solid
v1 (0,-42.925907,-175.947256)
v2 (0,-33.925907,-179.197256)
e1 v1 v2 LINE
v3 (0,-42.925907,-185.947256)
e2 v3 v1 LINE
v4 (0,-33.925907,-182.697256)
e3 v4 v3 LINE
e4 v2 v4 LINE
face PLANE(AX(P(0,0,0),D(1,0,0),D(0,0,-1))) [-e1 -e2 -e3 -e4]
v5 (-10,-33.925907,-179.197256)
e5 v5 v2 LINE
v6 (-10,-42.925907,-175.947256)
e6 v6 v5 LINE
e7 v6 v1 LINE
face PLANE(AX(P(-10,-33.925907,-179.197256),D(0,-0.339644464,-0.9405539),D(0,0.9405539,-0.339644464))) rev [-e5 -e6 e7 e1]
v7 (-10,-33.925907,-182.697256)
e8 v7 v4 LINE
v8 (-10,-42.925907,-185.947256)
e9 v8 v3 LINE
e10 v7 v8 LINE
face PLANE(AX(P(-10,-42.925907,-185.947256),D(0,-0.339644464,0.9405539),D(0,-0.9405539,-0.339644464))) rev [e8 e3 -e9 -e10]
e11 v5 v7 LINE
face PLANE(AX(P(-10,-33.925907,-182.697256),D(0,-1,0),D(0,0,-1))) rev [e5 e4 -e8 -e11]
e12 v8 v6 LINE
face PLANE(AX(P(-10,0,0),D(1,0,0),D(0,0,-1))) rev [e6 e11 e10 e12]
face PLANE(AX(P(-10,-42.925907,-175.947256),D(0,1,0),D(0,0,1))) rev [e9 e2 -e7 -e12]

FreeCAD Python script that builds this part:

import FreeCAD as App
import Part
import Sketcher

V = App.Vector

doc = App.newDocument("Part")
body = doc.addObject("PartDesign::Body", "Body")

sketch1 = body.newObject("Sketcher::SketchObject", "Sketch")
sketch1.AttachmentSupport = (doc.getObject("YZ_Plane"), [""])
sketch1.MapMode = "FlatFace"
sketch1.addGeometry([
    Part.LineSegment(V(-42.925907, -185.947256, 0), V(-42.925907, -175.947256, 0)),
    Part.LineSegment(V(-42.925907, -175.947256, 0), V(-33.925907, -179.197256, 0)),
    Part.LineSegment(V(-33.925907, -179.197256, 0), V(-33.925907, -182.697256, 0)),
    Part.LineSegment(V(-33.925907, -182.697256, 0), V(-42.925907, -185.947256, 0)),
], False)
sketch1.addConstraint([
    Sketcher.Constraint("Coincident", 0, 2, 1, 1),
    Sketcher.Constraint("Coincident", 1, 2, 2, 1),
    Sketcher.Constraint("Coincident", 2, 2, 3, 1),
    Sketcher.Constraint("Coincident", 3, 2, 0, 1),
    Sketcher.Constraint("Vertical", 0),
    Sketcher.Constraint("Vertical", 2),
    Sketcher.Constraint("Equal", 1, 3),
    Sketcher.Constraint("DistanceY", 0, 1, 0, 2, 10.0),
    Sketcher.Constraint("DistanceY", 2, 2, 2, 1, 3.5),
    Sketcher.Constraint("DistanceX", 0, 2, 1, 2, 9.0),
    Sketcher.Constraint("DistanceX", 0, 2, -1, 1, 42.925907),
    Sketcher.Constraint("DistanceY", 0, 2, -1, 1, 175.947256),
])
pad1 = body.newObject("PartDesign::Pad", "Pad")
pad1.Profile = sketch1
pad1.Length = 10
pad1.Reversed = True

doc.recompute()
